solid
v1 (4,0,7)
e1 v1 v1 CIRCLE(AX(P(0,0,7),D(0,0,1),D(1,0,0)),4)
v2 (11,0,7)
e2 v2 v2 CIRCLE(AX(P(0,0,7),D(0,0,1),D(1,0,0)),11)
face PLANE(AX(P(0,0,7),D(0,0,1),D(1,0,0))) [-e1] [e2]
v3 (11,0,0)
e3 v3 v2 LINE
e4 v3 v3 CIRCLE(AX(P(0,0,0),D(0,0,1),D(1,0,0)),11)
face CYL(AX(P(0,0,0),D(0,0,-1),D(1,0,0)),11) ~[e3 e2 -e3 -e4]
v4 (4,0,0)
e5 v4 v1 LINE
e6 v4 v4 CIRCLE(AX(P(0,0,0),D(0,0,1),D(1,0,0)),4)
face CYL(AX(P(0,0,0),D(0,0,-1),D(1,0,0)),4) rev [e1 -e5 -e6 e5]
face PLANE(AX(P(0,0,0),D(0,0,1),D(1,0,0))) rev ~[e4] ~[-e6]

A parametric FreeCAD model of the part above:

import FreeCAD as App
import Part
import Sketcher
from FreeCAD import Vector

doc = App.newDocument("Part")
body = doc.addObject("PartDesign::Body", "Body")

# Sketch on XY plane
sketch1 = doc.addObject("Sketcher::SketchObject", "Sketch")
body.addObject(sketch1)
sketch1.AttachmentSupport = (doc.XY_Plane, [""])
sketch1.MapMode = "FlatFace"
sketch1.addGeometry([
    Part.Circle(Vector(0, 0, 0), Vector(0, 0, 1), 11),
    Part.Circle(Vector(0, 0, 0), Vector(0, 0, 1), 4),
], False)
sketch1.addConstraint([
    Sketcher.Constraint("Coincident", 0, 3, -1, 1),
    Sketcher.Constraint("Coincident", 1, 3, -1, 1),
    Sketcher.Constraint("Diameter", 0, 22.0),
    Sketcher.Constraint("Diameter", 1, 8.0),
])
pad1 = doc.addObject("PartDesign::Pad", "Pad")
body.addObject(pad1)
pad1.Profile = sketch1
pad1.Length = 7

doc.recompute()
